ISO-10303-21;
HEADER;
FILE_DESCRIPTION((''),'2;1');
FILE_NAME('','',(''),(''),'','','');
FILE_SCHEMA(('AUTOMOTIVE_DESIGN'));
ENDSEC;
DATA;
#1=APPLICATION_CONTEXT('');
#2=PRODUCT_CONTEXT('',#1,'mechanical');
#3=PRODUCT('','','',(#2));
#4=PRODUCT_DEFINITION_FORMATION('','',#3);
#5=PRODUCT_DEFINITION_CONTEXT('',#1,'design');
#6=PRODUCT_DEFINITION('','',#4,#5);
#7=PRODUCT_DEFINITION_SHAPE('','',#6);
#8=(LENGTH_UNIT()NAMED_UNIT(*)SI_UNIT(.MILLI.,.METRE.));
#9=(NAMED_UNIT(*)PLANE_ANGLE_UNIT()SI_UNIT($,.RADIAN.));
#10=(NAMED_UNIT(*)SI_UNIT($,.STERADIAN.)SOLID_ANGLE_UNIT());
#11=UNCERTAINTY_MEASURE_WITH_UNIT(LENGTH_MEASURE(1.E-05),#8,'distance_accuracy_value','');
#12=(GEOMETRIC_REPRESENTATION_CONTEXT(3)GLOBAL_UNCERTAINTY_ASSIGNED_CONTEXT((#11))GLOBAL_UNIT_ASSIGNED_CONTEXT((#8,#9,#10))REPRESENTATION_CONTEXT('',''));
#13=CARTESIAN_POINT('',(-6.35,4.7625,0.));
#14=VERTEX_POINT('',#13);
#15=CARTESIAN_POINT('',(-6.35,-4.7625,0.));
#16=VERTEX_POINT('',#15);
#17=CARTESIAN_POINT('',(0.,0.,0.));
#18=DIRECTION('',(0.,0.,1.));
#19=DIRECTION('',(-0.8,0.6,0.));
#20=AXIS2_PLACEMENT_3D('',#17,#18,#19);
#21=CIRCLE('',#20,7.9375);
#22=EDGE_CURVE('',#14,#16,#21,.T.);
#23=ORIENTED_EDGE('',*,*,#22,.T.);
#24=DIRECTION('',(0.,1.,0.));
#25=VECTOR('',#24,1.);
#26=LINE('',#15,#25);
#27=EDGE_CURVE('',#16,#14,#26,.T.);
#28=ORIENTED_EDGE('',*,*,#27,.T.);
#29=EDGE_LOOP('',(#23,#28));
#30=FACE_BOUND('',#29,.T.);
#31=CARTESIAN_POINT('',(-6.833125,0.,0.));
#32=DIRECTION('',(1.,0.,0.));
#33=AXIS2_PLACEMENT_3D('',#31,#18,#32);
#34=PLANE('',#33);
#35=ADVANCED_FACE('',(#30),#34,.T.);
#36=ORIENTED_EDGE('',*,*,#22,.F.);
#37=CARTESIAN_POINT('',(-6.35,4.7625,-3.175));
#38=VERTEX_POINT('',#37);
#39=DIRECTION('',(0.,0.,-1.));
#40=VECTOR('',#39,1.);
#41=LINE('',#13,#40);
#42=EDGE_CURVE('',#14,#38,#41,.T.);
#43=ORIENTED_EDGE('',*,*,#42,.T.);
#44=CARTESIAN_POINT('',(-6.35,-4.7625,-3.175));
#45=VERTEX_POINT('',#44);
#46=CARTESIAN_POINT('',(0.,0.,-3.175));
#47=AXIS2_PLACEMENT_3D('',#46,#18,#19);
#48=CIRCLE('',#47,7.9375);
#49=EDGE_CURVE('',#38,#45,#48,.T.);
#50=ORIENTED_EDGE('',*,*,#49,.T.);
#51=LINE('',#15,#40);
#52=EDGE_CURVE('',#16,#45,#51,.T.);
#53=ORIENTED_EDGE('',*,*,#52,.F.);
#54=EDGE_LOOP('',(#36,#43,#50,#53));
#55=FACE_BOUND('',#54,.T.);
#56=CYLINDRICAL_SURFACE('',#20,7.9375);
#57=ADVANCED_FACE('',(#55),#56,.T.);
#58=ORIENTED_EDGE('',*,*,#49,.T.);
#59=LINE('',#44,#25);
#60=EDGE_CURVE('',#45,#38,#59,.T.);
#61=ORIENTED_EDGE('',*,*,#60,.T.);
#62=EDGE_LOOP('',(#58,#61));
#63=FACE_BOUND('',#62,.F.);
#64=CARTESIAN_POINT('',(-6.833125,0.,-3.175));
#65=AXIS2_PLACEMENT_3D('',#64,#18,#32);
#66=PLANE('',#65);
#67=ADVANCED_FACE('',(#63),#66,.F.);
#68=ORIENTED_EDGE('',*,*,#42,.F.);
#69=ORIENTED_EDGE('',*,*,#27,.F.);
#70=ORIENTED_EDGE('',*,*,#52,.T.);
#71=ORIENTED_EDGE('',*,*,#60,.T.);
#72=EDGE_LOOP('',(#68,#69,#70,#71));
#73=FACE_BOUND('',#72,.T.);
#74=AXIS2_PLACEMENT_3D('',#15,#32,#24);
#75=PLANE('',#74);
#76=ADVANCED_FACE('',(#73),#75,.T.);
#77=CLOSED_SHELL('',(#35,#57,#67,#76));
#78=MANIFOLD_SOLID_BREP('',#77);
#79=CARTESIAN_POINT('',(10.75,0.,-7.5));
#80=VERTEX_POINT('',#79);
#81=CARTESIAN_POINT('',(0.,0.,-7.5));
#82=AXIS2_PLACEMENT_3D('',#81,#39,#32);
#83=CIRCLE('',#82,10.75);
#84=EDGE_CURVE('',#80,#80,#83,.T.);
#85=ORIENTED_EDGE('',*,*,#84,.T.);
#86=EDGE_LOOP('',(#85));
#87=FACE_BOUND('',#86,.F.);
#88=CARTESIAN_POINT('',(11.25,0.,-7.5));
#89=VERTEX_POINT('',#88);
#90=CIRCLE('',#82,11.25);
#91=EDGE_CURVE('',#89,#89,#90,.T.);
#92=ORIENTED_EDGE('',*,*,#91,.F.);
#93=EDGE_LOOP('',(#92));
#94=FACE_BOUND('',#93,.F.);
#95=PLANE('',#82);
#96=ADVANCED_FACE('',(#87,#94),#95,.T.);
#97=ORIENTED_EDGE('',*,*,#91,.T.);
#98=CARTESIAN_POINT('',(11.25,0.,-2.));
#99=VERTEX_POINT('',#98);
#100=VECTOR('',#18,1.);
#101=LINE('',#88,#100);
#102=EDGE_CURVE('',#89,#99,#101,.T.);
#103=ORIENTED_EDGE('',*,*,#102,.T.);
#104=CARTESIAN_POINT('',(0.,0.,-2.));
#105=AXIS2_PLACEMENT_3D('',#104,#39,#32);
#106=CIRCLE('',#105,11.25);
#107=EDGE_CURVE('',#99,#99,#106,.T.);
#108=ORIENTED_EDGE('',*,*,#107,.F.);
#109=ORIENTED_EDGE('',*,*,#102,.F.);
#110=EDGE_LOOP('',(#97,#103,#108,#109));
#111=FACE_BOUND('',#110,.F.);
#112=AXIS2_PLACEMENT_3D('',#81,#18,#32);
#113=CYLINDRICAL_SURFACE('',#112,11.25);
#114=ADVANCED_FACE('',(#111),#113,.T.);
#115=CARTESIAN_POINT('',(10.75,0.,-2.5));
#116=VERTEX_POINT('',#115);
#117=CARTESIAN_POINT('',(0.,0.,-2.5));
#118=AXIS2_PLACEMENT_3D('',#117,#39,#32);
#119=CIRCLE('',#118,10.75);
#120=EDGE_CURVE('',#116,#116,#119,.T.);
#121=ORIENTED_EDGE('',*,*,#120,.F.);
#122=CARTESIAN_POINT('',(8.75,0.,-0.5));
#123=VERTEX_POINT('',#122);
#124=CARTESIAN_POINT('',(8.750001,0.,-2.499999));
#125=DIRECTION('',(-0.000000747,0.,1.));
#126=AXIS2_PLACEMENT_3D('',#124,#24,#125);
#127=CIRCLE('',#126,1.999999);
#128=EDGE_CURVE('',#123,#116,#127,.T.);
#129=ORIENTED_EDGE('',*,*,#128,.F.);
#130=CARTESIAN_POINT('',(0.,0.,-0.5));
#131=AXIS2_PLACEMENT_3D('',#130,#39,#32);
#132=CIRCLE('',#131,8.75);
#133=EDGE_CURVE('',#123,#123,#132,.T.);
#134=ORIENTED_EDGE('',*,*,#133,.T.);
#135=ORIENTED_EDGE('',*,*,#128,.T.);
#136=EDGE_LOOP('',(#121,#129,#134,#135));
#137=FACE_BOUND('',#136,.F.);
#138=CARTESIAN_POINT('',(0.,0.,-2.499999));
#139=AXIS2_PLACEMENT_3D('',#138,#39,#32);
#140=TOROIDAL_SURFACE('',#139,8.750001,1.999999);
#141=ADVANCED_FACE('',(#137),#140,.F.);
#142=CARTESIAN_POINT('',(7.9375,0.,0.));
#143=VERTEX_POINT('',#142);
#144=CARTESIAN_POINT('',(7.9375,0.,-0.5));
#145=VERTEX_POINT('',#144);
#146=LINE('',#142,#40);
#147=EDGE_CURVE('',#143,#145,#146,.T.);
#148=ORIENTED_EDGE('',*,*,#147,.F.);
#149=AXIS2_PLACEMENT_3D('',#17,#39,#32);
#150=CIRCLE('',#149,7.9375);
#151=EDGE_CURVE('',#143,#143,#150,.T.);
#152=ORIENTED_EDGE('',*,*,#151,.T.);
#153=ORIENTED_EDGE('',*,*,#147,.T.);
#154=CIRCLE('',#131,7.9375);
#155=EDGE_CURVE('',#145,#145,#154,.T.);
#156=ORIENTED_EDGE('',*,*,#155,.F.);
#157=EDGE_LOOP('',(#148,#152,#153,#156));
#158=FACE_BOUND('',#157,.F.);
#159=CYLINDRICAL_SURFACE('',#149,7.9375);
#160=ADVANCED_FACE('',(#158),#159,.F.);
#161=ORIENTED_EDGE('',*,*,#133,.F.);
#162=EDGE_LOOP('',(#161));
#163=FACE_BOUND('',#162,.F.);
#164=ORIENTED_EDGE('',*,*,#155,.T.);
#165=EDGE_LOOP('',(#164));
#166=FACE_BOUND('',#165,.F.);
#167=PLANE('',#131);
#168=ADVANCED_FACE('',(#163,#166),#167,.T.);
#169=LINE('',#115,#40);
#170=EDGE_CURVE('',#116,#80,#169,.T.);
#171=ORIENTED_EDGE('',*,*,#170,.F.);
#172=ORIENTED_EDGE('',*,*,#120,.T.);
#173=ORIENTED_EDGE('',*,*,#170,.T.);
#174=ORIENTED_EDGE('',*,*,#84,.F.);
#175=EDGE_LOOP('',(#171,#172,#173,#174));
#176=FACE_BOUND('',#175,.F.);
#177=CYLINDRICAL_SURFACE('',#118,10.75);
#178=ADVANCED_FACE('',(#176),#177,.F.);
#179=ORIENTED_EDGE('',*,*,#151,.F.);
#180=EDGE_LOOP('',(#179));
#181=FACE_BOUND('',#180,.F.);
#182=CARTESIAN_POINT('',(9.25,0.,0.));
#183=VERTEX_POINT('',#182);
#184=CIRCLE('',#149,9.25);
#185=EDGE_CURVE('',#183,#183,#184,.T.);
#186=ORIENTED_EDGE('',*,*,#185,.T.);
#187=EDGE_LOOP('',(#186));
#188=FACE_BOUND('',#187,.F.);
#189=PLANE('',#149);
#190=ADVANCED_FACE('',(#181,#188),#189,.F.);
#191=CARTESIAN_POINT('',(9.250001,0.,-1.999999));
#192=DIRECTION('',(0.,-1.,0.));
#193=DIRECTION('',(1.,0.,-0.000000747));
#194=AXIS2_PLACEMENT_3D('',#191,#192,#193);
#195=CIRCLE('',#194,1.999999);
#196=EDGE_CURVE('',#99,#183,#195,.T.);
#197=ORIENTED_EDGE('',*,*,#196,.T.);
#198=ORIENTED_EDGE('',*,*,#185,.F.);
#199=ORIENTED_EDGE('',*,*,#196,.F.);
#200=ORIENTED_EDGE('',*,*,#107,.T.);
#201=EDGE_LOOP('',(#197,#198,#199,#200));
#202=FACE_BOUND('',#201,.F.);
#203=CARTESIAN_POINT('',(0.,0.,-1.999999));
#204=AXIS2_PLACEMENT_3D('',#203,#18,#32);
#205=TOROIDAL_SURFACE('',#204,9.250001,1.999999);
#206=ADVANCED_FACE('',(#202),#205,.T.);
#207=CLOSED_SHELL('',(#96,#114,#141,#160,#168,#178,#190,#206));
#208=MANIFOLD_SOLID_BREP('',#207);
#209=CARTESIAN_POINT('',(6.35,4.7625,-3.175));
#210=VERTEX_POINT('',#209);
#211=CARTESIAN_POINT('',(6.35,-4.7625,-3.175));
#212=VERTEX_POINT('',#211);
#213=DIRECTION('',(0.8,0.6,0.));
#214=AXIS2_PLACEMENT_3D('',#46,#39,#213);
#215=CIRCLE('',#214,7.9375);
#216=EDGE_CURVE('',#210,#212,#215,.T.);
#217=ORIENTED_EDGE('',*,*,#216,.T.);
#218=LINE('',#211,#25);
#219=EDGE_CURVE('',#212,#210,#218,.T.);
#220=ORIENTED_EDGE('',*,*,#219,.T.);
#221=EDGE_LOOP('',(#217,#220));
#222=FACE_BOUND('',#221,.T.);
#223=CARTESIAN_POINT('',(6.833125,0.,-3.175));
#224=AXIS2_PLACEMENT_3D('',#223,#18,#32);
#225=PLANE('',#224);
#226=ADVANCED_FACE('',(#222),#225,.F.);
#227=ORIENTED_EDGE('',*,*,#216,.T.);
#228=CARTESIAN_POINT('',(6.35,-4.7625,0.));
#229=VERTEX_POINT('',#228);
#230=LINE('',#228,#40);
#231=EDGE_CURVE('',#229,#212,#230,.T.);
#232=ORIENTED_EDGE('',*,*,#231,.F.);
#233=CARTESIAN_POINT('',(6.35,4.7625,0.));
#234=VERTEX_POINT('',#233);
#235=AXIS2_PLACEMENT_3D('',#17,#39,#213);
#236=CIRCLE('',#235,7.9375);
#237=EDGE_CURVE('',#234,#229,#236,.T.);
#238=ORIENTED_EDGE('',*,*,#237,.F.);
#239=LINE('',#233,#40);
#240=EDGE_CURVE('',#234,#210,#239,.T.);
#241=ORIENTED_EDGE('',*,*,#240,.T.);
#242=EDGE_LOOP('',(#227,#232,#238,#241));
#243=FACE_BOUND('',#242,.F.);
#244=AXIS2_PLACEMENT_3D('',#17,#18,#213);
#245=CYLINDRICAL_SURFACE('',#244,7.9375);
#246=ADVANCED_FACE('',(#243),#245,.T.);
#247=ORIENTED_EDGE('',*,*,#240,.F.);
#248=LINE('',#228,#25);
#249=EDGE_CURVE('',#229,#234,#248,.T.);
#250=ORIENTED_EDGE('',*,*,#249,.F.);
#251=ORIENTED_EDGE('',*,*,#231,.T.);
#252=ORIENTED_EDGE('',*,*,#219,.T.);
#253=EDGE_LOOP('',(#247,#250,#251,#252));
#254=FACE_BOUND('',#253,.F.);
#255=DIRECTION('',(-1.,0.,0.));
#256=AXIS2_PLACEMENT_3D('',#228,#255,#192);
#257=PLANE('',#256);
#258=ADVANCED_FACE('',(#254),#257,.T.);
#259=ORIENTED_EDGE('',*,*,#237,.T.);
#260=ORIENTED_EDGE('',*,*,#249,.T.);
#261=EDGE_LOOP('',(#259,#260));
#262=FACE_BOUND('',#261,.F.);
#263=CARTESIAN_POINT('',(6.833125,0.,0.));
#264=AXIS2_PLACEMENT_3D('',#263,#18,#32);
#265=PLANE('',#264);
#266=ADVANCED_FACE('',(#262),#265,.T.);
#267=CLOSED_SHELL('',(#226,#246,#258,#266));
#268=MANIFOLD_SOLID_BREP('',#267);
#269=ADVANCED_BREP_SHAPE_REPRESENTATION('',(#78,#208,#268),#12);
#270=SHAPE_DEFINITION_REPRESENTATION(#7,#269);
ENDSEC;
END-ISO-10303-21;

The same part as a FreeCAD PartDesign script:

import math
import FreeCAD as App
import Part
import Sketcher

V = App.Vector
Q = App.Units.Quantity

doc = App.newDocument("Part")
body = doc.addObject("PartDesign::Body", "Body")

# Sketch on XY plane
sketch1 = body.newObject("Sketcher::SketchObject", "Sketch")
sketch1.AttachmentSupport = (doc.getObject("XY_Plane"), [""])
sketch1.MapMode = "FlatFace"
sketch1.addGeometry(Part.LineSegment(V(-6, -5, 0), V(-6, 5, 0)), False)
sketch1.addGeometry(Part.ArcOfCircle(Part.Circle(V(0, 0, 0), V(0, 0, 1), 8), math.radians(143), math.radians(217)), False)
sketch1.addConstraint(Sketcher.Constraint("Coincident", 0, 1, 1, 2))
sketch1.addConstraint(Sketcher.Constraint("Coincident", 1, 1, 0, 2))
sketch1.addConstraint(Sketcher.Constraint("Vertical", 0))
sketch1.addConstraint(Sketcher.Constraint("Coincident", 1, 3, -1, 1))
sketch1.addConstraint(Sketcher.Constraint("Radius", 1, Q("7.9375 mm")))
sketch1.addConstraint(Sketcher.Constraint("DistanceY", 0, 1, 0, 2, Q("9.525 mm")))
pad1 = body.newObject("PartDesign::Pad", "Pad")
pad1.Profile = sketch1
pad1.Length = 3.175
pad1.Reversed = True
body2 = doc.addObject("PartDesign::Body", "Body001")
doc.recompute()

mirroring = doc.addObject("Part::Mirroring", "Mirroring")
mirroring.Source = body
mirroring.Base = V(0, 0, 0)
mirroring.Normal = V(1, 0, 0)
body2.BaseFeature = mirroring
doc.recompute()
body3 = doc.addObject("PartDesign::Body", "Body002")

# Sketch on XZ plane
sketch2 = body3.newObject("Sketcher::SketchObject", "Sketch001")
sketch2.AttachmentSupport = (doc.getObject("XZ_Plane002"), [""])
sketch2.MapMode = "FlatFace"
sketch2.addGeometry(Part.LineSegment(V(9.2, 0, 0), V(7.9, 0, 0)), False)
sketch2.addGeometry(Part.LineSegment(V(7.9, 0, 0), V(7.9, -0.5, 0)), False)
sketch2.addGeometry(Part.LineSegment(V(7.9, -0.5, 0), V(8.8, -0.5, 0)), False)
sketch2.addGeometry(Part.ArcOfCircle(Part.Circle(V(8.8, -2.5, 0), V(0, 0, 1), 2), math.radians(0), math.radians(90)), False)
sketch2.addGeometry(Part.LineSegment(V(10.8, -2.5, 0), V(10.8, -7.5, 0)), False)
sketch2.addGeometry(Part.LineSegment(V(10.8, -7.5, 0), V(11.2, -7.5, 0)), False)
sketch2.addGeometry(Part.LineSegment(V(11.2, -7.5, 0), V(11.2, -2, 0)), False)
sketch2.addGeometry(Part.ArcOfCircle(Part.Circle(V(9.3, -2, 0), V(0, 0, 1), 2), math.radians(0), math.radians(90)), False)
sketch2.addConstraint(Sketcher.Constraint("Coincident", 0, 2, 1, 1))
sketch2.addConstraint(Sketcher.Constraint("Coincident", 1, 2, 2, 1))
sketch2.addConstraint(Sketcher.Constraint("Tangent", 2, 2, 3, 2))
sketch2.addConstraint(Sketcher.Constraint("Tangent", 3, 1, 4, 1))
sketch2.addConstraint(Sketcher.Constraint("Coincident", 4, 2, 5, 1))
sketch2.addConstraint(Sketcher.Constraint("Coincident", 5, 2, 6, 1))
sketch2.addConstraint(Sketcher.Constraint("Tangent", 6, 2, 7, 1))
sketch2.addConstraint(Sketcher.Constraint("Tangent", 7, 2, 0, 1))
sketch2.addConstraint(Sketcher.Constraint("Horizontal", 0))
sketch2.addConstraint(Sketcher.Constraint("Vertical", 1))
sketch2.addConstraint(Sketcher.Constraint("Horizontal", 2))
sketch2.addConstraint(Sketcher.Constraint("Vertical", 4))
sketch2.addConstraint(Sketcher.Constraint("Horizontal", 5))
sketch2.addConstraint(Sketcher.Constraint("Vertical", 6))
sketch2.addConstraint(Sketcher.Constraint("Equal", 3, 7))
sketch2.addConstraint(Sketcher.Constraint("PointOnObject", 0, 2, -1))
sketch2.addConstraint(Sketcher.Constraint("Equal", 5, 1))
sketch2.addConstraint(Sketcher.Constraint("Radius", 3, Q("1.999999 mm")))
sketch2.addConstraint(Sketcher.Constraint("DistanceY", 4, 2, 4, 1, Q("5 mm")))
sketch2.addConstraint(Sketcher.Constraint("DistanceX", 5, 1, 5, 2, Q("0.5 mm")))
sketch2.addConstraint(Sketcher.Constraint("DistanceX", -1, 1, 3, 3, Q("8.750001 mm")))
sketch2.addConstraint(Sketcher.Constraint("DistanceX", 0, 2, 0, 1, Q("1.3125 mm")))
revolution = body3.newObject("PartDesign::Revolution", "Revolution")
revolution.Profile = sketch2
revolution.ReferenceAxis = (sketch2, ["V_Axis"])
revolution.Angle = 360
mirroring.Visibility = False

doc.recompute()
